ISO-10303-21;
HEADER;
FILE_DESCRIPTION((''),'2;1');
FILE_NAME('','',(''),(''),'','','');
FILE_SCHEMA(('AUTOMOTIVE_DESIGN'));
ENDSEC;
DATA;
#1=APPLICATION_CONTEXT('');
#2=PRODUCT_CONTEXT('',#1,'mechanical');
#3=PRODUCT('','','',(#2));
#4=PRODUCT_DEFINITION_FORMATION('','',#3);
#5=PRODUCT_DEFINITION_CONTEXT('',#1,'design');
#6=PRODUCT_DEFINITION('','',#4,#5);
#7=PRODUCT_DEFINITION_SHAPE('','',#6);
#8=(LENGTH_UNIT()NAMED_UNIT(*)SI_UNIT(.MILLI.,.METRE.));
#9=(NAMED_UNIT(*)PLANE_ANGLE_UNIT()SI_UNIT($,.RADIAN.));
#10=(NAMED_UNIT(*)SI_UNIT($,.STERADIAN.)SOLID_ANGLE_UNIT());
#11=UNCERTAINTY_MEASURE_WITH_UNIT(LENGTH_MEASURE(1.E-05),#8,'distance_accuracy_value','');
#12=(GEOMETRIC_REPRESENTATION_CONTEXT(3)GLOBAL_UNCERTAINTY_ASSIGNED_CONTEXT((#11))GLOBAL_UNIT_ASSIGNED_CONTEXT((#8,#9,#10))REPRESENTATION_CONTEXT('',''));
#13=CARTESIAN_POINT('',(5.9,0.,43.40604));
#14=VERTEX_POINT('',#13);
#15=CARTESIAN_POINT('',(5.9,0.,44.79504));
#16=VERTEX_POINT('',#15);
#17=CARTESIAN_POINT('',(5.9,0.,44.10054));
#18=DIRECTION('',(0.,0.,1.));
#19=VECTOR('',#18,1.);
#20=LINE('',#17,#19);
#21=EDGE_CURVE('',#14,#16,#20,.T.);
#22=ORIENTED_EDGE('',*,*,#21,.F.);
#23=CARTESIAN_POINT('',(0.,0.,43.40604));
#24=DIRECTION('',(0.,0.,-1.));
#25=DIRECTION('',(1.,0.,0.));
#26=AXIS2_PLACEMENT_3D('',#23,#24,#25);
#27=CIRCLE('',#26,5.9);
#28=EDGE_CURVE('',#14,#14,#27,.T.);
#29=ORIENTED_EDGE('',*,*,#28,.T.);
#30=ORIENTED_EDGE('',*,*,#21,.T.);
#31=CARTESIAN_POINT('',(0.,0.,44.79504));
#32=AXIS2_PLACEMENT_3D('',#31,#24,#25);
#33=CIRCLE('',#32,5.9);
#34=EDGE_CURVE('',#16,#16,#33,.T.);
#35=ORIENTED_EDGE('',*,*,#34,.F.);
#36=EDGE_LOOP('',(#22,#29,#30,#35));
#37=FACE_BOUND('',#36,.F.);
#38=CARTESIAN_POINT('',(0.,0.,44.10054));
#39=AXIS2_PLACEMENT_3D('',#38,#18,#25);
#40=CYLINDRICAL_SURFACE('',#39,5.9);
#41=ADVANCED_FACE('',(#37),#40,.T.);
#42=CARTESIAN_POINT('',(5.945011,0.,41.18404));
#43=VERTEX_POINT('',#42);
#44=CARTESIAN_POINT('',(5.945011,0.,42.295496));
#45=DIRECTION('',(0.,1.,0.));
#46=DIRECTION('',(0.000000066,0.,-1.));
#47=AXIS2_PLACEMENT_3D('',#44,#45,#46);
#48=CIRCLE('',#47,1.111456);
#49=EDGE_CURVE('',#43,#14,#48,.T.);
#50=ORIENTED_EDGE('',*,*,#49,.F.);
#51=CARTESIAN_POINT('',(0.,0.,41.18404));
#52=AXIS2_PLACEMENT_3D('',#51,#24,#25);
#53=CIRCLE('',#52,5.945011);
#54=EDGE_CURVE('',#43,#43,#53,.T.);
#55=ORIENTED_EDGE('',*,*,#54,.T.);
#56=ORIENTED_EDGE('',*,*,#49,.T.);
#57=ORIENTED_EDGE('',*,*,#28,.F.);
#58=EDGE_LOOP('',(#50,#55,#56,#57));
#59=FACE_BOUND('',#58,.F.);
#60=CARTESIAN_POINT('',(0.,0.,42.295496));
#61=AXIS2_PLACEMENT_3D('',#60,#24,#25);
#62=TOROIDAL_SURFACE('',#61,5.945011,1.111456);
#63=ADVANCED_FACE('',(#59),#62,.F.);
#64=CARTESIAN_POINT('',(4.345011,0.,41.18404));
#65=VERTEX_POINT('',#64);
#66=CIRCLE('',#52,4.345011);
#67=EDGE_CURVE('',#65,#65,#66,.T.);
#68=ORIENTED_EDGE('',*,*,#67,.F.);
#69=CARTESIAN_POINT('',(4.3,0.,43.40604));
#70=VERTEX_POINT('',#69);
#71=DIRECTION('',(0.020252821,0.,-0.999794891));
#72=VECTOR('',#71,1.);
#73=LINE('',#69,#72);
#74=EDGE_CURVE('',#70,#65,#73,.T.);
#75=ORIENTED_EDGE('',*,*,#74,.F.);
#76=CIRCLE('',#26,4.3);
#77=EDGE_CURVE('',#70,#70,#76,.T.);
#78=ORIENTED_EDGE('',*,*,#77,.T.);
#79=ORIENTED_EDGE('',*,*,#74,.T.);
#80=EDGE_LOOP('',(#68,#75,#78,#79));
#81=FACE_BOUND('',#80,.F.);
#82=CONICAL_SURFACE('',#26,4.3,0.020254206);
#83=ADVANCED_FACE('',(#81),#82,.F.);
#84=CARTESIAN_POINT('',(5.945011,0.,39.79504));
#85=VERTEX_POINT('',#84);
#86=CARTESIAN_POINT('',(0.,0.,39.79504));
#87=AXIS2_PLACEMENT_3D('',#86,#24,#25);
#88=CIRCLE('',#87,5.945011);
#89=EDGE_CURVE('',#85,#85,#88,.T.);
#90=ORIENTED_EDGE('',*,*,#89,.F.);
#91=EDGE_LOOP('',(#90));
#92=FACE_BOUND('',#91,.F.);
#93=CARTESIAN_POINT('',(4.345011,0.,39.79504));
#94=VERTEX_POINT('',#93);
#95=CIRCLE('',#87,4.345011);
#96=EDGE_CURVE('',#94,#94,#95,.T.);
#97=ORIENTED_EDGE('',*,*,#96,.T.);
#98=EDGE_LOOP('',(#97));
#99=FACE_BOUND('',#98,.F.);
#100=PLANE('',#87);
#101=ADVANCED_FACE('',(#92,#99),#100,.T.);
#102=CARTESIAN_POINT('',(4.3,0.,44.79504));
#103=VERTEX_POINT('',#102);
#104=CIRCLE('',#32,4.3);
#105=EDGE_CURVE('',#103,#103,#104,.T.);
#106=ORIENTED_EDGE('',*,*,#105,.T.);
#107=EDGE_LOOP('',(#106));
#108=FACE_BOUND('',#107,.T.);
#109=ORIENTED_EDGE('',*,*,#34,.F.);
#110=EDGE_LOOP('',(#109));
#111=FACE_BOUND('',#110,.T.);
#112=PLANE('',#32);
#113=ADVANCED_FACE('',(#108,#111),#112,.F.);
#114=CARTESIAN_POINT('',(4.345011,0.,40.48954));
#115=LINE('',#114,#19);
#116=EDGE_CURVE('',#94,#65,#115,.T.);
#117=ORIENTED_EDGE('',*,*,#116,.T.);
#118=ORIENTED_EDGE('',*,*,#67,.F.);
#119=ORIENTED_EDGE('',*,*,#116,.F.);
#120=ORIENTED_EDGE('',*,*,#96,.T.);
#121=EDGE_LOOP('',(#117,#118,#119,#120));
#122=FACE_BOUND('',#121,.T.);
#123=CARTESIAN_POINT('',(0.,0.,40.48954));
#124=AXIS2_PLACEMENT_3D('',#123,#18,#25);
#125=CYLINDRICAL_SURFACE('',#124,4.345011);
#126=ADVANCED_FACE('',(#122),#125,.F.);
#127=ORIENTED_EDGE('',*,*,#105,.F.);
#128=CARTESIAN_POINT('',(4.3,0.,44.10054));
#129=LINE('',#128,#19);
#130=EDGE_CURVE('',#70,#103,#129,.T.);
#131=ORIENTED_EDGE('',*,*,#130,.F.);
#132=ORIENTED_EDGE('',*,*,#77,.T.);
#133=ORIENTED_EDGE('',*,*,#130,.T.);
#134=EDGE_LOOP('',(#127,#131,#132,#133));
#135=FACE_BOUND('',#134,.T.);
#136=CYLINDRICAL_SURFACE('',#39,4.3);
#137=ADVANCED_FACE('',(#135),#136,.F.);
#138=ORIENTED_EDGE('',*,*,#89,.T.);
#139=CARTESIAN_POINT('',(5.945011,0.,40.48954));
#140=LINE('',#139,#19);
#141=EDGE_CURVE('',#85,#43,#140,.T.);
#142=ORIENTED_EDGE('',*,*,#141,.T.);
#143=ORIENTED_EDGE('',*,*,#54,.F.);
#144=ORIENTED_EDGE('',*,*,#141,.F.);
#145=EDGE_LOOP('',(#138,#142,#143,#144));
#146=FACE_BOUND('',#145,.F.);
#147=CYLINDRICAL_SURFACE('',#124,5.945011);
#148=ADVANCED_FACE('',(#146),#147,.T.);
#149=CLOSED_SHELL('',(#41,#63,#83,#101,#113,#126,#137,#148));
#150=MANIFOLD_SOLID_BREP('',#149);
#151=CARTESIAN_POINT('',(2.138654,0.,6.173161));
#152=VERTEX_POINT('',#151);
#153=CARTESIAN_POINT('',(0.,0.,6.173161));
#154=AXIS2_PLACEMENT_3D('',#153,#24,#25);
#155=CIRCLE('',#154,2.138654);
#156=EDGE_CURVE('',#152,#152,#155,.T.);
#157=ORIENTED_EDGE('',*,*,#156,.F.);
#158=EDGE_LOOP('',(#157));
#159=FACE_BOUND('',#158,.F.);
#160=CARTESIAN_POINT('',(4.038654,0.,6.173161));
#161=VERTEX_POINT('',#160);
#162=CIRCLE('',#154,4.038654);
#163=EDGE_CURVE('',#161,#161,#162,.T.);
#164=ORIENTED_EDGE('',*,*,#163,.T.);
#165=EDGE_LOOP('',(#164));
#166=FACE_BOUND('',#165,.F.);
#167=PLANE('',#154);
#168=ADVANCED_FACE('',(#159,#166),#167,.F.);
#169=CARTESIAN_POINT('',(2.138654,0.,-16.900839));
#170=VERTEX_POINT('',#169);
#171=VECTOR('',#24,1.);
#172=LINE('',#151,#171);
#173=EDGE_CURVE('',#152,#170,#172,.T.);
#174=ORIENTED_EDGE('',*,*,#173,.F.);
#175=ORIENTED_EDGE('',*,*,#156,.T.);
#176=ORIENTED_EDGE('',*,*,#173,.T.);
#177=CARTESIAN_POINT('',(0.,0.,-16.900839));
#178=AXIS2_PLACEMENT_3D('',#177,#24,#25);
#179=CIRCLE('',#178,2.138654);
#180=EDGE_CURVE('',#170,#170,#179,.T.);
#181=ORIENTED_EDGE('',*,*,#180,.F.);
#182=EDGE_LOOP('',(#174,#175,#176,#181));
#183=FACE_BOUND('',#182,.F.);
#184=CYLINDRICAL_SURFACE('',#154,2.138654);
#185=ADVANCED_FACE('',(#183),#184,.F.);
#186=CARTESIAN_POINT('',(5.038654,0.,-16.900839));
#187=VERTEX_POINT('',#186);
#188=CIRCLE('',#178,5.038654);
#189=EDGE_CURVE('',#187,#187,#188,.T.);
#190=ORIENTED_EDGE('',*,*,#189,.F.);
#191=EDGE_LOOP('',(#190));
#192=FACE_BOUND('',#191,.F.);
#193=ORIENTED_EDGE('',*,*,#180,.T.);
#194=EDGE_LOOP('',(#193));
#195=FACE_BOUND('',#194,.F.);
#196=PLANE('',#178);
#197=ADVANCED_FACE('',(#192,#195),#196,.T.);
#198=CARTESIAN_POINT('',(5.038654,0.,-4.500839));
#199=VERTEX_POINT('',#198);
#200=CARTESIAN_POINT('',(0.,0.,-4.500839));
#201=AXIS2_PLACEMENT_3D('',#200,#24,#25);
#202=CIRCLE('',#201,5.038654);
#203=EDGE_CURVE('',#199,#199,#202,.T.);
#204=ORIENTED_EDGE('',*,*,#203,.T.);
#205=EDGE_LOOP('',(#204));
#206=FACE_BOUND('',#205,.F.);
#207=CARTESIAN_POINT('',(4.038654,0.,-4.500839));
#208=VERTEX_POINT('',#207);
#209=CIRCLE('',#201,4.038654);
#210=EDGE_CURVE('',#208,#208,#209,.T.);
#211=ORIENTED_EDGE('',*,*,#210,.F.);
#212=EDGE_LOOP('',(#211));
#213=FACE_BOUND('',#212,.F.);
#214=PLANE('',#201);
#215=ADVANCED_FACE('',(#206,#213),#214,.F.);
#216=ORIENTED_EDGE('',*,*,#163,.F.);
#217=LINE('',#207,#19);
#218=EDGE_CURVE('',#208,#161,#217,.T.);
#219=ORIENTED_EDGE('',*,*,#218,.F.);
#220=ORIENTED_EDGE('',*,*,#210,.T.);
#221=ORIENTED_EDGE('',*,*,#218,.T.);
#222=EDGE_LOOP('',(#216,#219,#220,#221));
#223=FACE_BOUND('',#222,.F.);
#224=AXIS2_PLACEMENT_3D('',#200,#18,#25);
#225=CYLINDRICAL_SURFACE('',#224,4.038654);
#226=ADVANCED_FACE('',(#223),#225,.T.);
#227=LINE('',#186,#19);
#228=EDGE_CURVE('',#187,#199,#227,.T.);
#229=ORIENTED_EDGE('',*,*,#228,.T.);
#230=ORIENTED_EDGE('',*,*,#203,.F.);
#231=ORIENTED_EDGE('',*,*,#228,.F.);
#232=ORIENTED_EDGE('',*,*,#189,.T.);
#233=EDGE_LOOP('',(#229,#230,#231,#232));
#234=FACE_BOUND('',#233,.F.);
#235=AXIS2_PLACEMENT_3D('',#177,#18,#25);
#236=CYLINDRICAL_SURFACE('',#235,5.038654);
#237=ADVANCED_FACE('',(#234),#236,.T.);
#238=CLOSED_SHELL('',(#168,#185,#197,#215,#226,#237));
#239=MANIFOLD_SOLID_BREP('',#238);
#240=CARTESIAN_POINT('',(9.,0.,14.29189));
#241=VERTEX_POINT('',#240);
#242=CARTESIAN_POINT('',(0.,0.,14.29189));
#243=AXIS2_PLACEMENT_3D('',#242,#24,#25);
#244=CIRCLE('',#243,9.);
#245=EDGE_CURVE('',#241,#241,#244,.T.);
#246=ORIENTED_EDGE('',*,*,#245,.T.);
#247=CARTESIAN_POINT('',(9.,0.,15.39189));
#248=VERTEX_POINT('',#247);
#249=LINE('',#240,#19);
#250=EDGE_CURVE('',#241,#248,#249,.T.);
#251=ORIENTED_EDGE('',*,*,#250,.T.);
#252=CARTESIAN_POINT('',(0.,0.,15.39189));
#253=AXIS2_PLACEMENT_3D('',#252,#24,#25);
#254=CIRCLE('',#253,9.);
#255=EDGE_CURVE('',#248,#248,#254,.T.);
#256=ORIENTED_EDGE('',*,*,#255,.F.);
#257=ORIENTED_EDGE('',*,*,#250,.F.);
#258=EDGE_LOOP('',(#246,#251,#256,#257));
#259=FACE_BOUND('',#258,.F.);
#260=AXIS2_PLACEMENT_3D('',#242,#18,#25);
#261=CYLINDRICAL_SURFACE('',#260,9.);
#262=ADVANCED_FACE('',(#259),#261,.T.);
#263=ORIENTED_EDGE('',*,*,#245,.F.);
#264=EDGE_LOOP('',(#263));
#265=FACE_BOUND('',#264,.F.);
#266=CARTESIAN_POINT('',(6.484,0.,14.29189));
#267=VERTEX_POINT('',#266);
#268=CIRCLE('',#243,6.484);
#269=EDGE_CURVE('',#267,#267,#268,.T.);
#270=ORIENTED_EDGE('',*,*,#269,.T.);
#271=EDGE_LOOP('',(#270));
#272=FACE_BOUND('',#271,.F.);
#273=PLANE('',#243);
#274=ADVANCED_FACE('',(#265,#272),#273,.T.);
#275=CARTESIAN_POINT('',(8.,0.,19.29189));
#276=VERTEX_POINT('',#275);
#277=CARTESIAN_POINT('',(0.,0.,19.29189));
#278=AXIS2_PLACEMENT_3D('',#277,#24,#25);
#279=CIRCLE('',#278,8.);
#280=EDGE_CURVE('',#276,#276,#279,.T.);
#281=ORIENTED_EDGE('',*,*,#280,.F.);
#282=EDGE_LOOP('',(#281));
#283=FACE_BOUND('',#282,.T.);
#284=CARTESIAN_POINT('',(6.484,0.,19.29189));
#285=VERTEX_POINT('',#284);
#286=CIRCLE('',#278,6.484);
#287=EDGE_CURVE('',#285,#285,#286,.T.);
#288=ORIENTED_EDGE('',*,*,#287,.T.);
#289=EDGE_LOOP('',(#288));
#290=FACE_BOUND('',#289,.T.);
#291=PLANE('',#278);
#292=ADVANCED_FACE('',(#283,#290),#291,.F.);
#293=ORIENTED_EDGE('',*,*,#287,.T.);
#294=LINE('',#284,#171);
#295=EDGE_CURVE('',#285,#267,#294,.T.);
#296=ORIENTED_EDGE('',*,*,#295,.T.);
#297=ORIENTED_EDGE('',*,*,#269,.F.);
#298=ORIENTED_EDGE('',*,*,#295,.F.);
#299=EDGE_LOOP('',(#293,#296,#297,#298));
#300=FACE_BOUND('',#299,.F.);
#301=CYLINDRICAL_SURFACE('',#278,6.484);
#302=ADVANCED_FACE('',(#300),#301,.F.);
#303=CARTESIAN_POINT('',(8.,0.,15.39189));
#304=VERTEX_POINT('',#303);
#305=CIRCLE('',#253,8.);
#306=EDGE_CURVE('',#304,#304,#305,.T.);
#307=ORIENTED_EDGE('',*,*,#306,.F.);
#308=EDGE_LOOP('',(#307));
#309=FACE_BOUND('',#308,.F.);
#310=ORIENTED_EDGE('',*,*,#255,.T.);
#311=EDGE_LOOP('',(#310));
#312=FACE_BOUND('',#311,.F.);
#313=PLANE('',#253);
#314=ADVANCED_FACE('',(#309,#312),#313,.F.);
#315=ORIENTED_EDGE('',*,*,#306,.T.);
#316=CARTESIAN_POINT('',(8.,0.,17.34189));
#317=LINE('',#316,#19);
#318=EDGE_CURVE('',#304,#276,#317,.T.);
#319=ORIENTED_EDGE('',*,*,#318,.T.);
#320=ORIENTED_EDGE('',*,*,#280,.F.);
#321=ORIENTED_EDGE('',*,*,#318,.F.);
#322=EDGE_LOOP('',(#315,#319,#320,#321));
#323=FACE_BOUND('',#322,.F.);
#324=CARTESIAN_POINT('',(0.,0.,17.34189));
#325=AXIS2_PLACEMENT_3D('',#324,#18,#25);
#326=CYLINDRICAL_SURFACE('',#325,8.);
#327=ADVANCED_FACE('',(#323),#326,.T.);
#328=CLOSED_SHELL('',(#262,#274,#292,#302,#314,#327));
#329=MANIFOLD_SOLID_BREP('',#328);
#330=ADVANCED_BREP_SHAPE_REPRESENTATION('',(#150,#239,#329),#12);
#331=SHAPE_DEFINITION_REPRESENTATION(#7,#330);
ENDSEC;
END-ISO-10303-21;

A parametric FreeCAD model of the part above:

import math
import FreeCAD as App
import Part
import Sketcher


def add_polygon(sketch, points):
    """Adds a closed chain of lines whose ends are joined by coincident constraints."""
    first, n = sketch.GeometryCount, len(points)
    for a, b in zip(points, points[1:] + points[:1]):
        sketch.addGeometry(Part.LineSegment(App.Vector(*a, 0), App.Vector(*b, 0)), False)
    for i in range(n):
        sketch.addConstraint(Sketcher.Constraint("Coincident", first + i, 2, first + (i + 1) % n, 1))

doc = App.newDocument("Part")
body = doc.addObject("PartDesign::Body", "Body")
body.AllowCompound = True

# Sketch on XZ plane
sketch1 = body.newObject("Sketcher::SketchObject", "Sketch")
sketch1.AttachmentSupport = (doc.getObject("XZ_Plane"), [""])
sketch1.MapMode = "FlatFace"
add_polygon(sketch1, [(6.5, 19.3), (6.5, 14.3), (9, 14.3), (9, 15.4), (8, 15.4), (8, 19.3)])  # lines 0-5
add_polygon(sketch1, [(4, 6.2), (2.1, 6.2), (2.1, -16.9), (5, -16.9), (5, -4.5), (4, -4.5)])  # lines 6-11
sketch1.addGeometry(Part.LineSegment(App.Vector(4.3, 44.8, 0), App.Vector(4.3, 43.4, 0)), False)  # 12
sketch1.addGeometry(Part.LineSegment(App.Vector(4.3, 43.4, 0), App.Vector(4.3, 41.2, 0)), False)  # 13
sketch1.addGeometry(Part.LineSegment(App.Vector(4.3, 41.2, 0), App.Vector(4.3, 39.8, 0)), False)  # 14
sketch1.addGeometry(Part.LineSegment(App.Vector(4.3, 39.8, 0), App.Vector(5.9, 39.8, 0)), False)  # 15
sketch1.addGeometry(Part.LineSegment(App.Vector(5.9, 39.8, 0), App.Vector(5.9, 41.2, 0)), False)  # 16
sketch1.addGeometry(Part.ArcOfCircle(Part.Circle(App.Vector(5.9, 42.3, 0), App.Vector(0, 0, 1), 1.1), math.radians(92), math.radians(270)), False)  # 17
sketch1.addGeometry(Part.LineSegment(App.Vector(5.9, 43.4, 0), App.Vector(5.9, 44.8, 0)), False)  # 18
sketch1.addGeometry(Part.LineSegment(App.Vector(5.9, 44.8, 0), App.Vector(4.3, 44.8, 0)), False)  # 19
sketch1.addConstraint([
    Sketcher.Constraint("Coincident", 12, 2, 13, 1),
    Sketcher.Constraint("Coincident", 13, 2, 14, 1),
    Sketcher.Constraint("Coincident", 14, 2, 15, 1),
    Sketcher.Constraint("Coincident", 15, 2, 16, 1),
    Sketcher.Constraint("Coincident", 16, 2, 17, 2),
    Sketcher.Constraint("Coincident", 17, 1, 18, 1),
    Sketcher.Constraint("Coincident", 18, 2, 19, 1),
    Sketcher.Constraint("Coincident", 19, 2, 12, 1),
    Sketcher.Constraint("Vertical", 0),
    Sketcher.Constraint("Horizontal", 1),
    Sketcher.Constraint("Vertical", 2),
    Sketcher.Constraint("Horizontal", 3),
    Sketcher.Constraint("Vertical", 4),
    Sketcher.Constraint("Horizontal", 5),
    Sketcher.Constraint("Horizontal", 6),
    Sketcher.Constraint("Vertical", 7),
    Sketcher.Constraint("Horizontal", 8),
    Sketcher.Constraint("Vertical", 9),
    Sketcher.Constraint("Horizontal", 10),
    Sketcher.Constraint("Vertical", 11),
    Sketcher.Constraint("Vertical", 12),
    Sketcher.Constraint("Vertical", 14),
    Sketcher.Constraint("Horizontal", 15),
    Sketcher.Constraint("Vertical", 16),
    Sketcher.Constraint("Vertical", 18),
    Sketcher.Constraint("Horizontal", 19),
    Sketcher.Constraint("Horizontal", 13, 2, 16, 2),
    Sketcher.Constraint("Horizontal", 12, 2, 17, 1),
    Sketcher.Constraint("Vertical", 17, 3, 15, 2),
    Sketcher.Constraint("Equal", 3, 10),
    Sketcher.Constraint("Equal", 15, 19),
    Sketcher.Constraint("Equal", 12, 14),
    Sketcher.Constraint("DistanceX", 3, 2, 3, 1, 1.0),
    Sketcher.Constraint("DistanceY", 0, 2, 0, 1, 5.0),
    Sketcher.Constraint("DistanceX", 6, 2, 6, 1, 1.9),
    Sketcher.Constraint("DistanceX", 15, 1, 15, 2, 1.6),
    Sketcher.Constraint("DistanceY", 2, 1, 2, 2, 1.1),
    Sketcher.Constraint("DistanceY", 9, 1, 9, 2, 12.4),
    Sketcher.Constraint("DistanceX", -1, 1, 1, 2, 9.0),
    Sketcher.Constraint("DistanceX", -1, 1, 12, 2, 4.3),
    Sketcher.Constraint("DistanceX", 1, 1, 1, 2, 2.516),
    Sketcher.Constraint("DistanceY", 7, 2, 7, 1, 23.074),
    Sketcher.Constraint("DistanceY", 12, 2, 12, 1, 1.389),
    Sketcher.Constraint("Radius", 17, 1.111456),
    Sketcher.Constraint("DistanceY", 13, 2, 12, 2, 2.222),
    Sketcher.Constraint("DistanceY", -1, 1, 0, 2, 14.29189),
    Sketcher.Constraint("DistanceY", -1, 1, 6, 2, 6.173161),
    Sketcher.Constraint("DistanceY", -1, 1, 12, 2, 43.40604),
    Sketcher.Constraint("DistanceX", -1, 1, 6, 2, 2.138654),
])
revolution = body.newObject("PartDesign::Revolution", "Revolution")
revolution.Profile = sketch1
revolution.ReferenceAxis = (sketch1, ["V_Axis"])
revolution.Angle = 360

doc.recompute()
